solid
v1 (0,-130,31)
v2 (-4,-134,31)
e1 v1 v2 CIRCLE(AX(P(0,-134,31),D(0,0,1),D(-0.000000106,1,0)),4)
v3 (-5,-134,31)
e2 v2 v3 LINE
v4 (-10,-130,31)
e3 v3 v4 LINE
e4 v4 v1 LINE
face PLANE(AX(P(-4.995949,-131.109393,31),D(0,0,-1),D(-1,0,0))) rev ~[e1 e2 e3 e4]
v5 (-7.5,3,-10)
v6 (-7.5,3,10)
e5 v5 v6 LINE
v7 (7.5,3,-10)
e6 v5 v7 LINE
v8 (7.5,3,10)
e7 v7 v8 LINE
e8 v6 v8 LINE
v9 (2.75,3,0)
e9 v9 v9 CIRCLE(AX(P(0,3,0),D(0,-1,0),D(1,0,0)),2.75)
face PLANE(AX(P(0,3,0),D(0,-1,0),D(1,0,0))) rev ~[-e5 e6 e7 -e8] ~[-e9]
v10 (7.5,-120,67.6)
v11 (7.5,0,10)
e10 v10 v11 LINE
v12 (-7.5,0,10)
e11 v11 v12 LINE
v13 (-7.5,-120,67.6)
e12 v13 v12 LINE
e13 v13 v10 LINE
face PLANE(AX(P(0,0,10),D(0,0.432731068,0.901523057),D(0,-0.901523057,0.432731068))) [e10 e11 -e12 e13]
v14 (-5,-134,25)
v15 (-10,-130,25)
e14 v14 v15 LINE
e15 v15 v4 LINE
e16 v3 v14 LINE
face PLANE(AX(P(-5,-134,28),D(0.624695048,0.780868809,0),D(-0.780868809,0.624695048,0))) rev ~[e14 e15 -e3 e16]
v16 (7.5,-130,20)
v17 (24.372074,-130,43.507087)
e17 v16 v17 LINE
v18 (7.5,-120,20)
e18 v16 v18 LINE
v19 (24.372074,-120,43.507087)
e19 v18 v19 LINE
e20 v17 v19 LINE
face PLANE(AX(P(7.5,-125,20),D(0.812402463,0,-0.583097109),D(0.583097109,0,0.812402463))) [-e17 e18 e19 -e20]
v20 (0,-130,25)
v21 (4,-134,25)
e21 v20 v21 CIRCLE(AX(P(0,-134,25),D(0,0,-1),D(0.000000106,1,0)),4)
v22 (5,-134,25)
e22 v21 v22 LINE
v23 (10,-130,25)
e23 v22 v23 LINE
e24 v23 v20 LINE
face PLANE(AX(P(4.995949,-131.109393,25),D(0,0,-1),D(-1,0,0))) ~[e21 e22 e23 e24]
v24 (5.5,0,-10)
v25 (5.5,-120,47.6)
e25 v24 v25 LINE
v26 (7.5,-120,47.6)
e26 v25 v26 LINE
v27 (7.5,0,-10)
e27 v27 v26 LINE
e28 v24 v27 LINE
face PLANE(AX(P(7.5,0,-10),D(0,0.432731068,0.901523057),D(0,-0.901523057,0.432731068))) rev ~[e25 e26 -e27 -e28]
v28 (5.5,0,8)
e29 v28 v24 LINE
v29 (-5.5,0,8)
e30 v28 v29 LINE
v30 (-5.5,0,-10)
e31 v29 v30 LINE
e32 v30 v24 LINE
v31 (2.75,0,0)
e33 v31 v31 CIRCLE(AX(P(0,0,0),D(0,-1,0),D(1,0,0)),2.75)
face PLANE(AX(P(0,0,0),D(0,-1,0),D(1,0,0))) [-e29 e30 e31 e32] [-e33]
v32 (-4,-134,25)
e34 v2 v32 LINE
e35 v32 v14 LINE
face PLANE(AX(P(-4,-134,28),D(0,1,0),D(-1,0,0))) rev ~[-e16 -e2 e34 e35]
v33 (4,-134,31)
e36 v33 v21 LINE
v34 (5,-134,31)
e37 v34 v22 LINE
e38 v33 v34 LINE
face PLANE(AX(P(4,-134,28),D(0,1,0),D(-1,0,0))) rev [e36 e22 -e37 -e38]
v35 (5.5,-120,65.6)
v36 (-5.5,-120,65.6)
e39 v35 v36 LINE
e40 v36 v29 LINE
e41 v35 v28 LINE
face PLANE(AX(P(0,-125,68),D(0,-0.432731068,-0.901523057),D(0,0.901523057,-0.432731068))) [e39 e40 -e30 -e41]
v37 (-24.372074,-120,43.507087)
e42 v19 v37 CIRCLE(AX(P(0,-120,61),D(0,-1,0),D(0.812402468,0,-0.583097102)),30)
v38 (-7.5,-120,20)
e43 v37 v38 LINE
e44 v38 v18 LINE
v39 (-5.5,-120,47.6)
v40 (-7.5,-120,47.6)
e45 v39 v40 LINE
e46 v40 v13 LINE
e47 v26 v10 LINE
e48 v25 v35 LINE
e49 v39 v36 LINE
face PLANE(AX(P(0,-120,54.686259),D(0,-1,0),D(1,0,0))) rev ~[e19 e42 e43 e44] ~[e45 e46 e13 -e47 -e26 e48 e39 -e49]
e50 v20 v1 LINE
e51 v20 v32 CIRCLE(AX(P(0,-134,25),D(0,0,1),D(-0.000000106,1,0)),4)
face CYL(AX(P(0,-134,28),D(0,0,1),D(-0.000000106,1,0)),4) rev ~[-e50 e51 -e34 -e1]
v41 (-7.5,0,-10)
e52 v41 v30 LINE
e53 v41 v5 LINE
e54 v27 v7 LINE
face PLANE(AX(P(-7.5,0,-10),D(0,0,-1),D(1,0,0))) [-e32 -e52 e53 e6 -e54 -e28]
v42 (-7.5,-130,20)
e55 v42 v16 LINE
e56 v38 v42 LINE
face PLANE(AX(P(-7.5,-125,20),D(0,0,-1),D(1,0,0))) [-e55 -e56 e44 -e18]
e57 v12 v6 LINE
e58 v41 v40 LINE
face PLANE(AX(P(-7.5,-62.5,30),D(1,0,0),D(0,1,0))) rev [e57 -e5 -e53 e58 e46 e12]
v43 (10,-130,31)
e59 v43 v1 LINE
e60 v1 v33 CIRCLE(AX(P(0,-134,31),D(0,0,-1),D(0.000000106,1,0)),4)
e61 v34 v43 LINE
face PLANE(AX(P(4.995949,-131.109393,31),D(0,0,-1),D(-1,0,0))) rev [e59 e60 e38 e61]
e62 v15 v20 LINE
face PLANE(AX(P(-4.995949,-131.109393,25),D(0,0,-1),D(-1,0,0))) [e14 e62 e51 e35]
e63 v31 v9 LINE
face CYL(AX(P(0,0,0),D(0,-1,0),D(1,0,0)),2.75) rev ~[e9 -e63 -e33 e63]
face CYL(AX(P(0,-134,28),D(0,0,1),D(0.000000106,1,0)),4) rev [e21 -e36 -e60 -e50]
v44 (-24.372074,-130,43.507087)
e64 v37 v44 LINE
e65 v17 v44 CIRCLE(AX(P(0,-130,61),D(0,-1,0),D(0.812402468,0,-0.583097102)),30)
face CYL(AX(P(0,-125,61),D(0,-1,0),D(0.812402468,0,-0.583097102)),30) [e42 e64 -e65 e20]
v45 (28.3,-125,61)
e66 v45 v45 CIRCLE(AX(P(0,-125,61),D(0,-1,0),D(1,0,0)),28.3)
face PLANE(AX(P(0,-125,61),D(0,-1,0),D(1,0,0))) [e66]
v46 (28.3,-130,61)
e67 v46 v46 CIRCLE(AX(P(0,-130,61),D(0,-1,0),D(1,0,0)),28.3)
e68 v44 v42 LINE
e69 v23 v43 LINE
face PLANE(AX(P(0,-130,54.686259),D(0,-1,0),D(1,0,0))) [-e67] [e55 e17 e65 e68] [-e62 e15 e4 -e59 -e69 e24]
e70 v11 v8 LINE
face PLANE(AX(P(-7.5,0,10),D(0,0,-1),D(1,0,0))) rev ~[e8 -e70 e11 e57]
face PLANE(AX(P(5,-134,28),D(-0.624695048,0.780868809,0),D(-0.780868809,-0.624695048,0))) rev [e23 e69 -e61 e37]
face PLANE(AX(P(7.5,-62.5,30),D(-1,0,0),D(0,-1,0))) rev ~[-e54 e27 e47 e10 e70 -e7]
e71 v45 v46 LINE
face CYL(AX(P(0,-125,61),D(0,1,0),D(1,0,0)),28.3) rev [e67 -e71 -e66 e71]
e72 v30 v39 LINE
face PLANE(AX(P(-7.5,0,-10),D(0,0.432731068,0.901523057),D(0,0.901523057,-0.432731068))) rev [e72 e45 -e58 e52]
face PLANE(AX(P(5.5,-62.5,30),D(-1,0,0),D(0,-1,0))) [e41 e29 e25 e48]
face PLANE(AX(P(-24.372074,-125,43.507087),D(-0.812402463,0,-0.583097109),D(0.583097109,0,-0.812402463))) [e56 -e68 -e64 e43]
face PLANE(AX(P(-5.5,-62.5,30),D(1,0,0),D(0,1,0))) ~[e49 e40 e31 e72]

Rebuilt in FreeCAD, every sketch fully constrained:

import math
import FreeCAD as App
import Part
import Sketcher
from FreeCAD import Vector


def add_polygon(sketch, points):
    """Adds a closed chain of lines whose ends are joined by coincident constraints."""
    first, n = sketch.GeometryCount, len(points)
    for a, b in zip(points, points[1:] + points[:1]):
        sketch.addGeometry(Part.LineSegment(App.Vector(*a, 0), App.Vector(*b, 0)), False)
    for i in range(n):
        sketch.addConstraint(Sketcher.Constraint("Coincident", first + i, 2, first + (i + 1) % n, 1))

doc = App.newDocument("Part")
body = doc.addObject("PartDesign::Body", "Body")

# Sketch on XZ plane
sketch1 = doc.addObject("Sketcher::SketchObject", "Sketch")
body.addObject(sketch1)
sketch1.AttachmentSupport = (doc.XZ_Plane, [""])
sketch1.MapMode = "FlatFace"
add_polygon(sketch1, [(-7.5, 10), (-7.5, -10), (7.5, -10), (7.5, 10)])  # lines 0-3
sketch1.addGeometry(Part.Circle(Vector(0, 0, 0), Vector(0, 0, 1), 2.8), False)  # 4
sketch1.addConstraint(Sketcher.Constraint("Vertical", 0))
sketch1.addConstraint(Sketcher.Constraint("Horizontal", 1))
sketch1.addConstraint(Sketcher.Constraint("Vertical", 2))
sketch1.addConstraint(Sketcher.Constraint("Horizontal", 3))
sketch1.addConstraint(Sketcher.Constraint("Coincident", 4, 3, -1, 1))
sketch1.addConstraint(Sketcher.Constraint("Symmetric", 0, 2, 2, 2, -1, 1))
sketch1.addConstraint(Sketcher.Constraint("Diameter", 4, 5.5))
sketch1.addConstraint(Sketcher.Constraint("DistanceX", 1, 1, 1, 2, 15.0))
sketch1.addConstraint(Sketcher.Constraint("DistanceY", 0, 2, 0, 1, 20.0))
pad1 = doc.addObject("PartDesign::Pad", "Pad")
body.addObject(pad1)
pad1.Profile = sketch1
pad1.Length = 3
pad1.Reversed = True

# Sketch on YZ plane
sketch2 = doc.addObject("Sketcher::SketchObject", "Sketch001")
body.addObject(sketch2)
sketch2.AttachmentSupport = (doc.YZ_Plane, [""])
sketch2.MapMode = "FlatFace"
sketch2.AttachmentOffset = App.Placement(Vector(0, 0, 7.5), App.Rotation())
add_polygon(sketch2, [(-125, 50), (0, -10), (0, 10), (-125, 70)])  # lines 0-3
sketch2.addConstraint(Sketcher.Constraint("Vertical", 1))
sketch2.addConstraint(Sketcher.Constraint("Vertical", 3))
sketch2.addConstraint(Sketcher.Constraint("Symmetric", 0, 2, 1, 2, -1, 1))
sketch2.addConstraint(Sketcher.Constraint("Parallel", 0, 2))
sketch2.addConstraint(Sketcher.Constraint("DistanceY", 1, 1, 1, 2, 20.0))
sketch2.addConstraint(Sketcher.Constraint("DistanceX", 2, 2, -1, 1, 125.0))
sketch2.addConstraint(Sketcher.Constraint("DistanceY", -1, 1, 2, 2, 70.0))
pad2 = doc.addObject("PartDesign::Pad", "Pad001")
body.addObject(pad2)
pad2.Profile = sketch2
pad2.Length = 2
pad2.Reversed = True
doc.recompute()

mirrored = doc.addObject("PartDesign::Mirrored", "Mirrored")
body.addObject(mirrored)
mirrored.Originals = [pad2]
mirrored.MirrorPlane = (doc.YZ_Plane, [""])
body.Tip = mirrored

# Sketch on YZ plane
sketch3 = doc.addObject("Sketcher::SketchObject", "Sketch002")
body.addObject(sketch3)
sketch3.AttachmentSupport = (doc.YZ_Plane, [""])
sketch3.MapMode = "FlatFace"
add_polygon(sketch3, [(0, 10), (-125, 70), (-125, 68), (0, 8)])  # lines 0-3
sketch3.addConstraint(Sketcher.Constraint("Vertical", 1))
sketch3.addConstraint(Sketcher.Constraint("Vertical", 3))
sketch3.addConstraint(Sketcher.Constraint("PointOnObject", 2, 2, -2))
sketch3.addConstraint(Sketcher.Constraint("Parallel", 0, 2))
sketch3.addConstraint(Sketcher.Constraint("DistanceY", 1, 2, 1, 1, 2.0))
sketch3.addConstraint(Sketcher.Constraint("DistanceX", 0, 2, -1, 1, 125.0))
sketch3.addConstraint(Sketcher.Constraint("DistanceY", -1, 1, 0, 2, 70.0))
sketch3.addConstraint(Sketcher.Constraint("DistanceY", -1, 1, 2, 2, 8.0))
pad3 = doc.addObject("PartDesign::Pad", "Pad002")
body.addObject(pad3)
pad3.Profile = sketch3
pad3.Length = 11
pad3.Midplane = True

# Sketch on XZ plane
sketch4 = doc.addObject("Sketcher::SketchObject", "Sketch003")
body.addObject(sketch4)
sketch4.AttachmentSupport = (doc.XZ_Plane, [""])
sketch4.MapMode = "FlatFace"
sketch4.AttachmentOffset = App.Placement(Vector(0, 0, 125), App.Rotation())
sketch4.addGeometry(Part.ArcOfCircle(Part.Circle(Vector(0, 61, 0), Vector(0, 0, 1), 30), math.radians(-36), math.radians(216)), False)
sketch4.addGeometry(Part.LineSegment(Vector(-24, 44, 0), Vector(-8, 20, 0)), False)
sketch4.addGeometry(Part.LineSegment(Vector(-8, 20, 0), Vector(8, 20, 0)), False)
sketch4.addGeometry(Part.LineSegment(Vector(8, 20, 0), Vector(24, 44, 0)), False)
sketch4.addConstraint(Sketcher.Constraint("Tangent", 0, 2, 1, 1))
sketch4.addConstraint(Sketcher.Constraint("Coincident", 1, 2, 2, 1))
sketch4.addConstraint(Sketcher.Constraint("Coincident", 2, 2, 3, 1))
sketch4.addConstraint(Sketcher.Constraint("Tangent", 3, 2, 0, 1))
sketch4.addConstraint(Sketcher.Constraint("Horizontal", 2))
sketch4.addConstraint(Sketcher.Constraint("Symmetric", 0, 2, 3, 2, -2))
sketch4.addConstraint(Sketcher.Constraint("Radius", 0, 30.0))
sketch4.addConstraint(Sketcher.Constraint("DistanceX", 2, 1, 2, 2, 15.0))
sketch4.addConstraint(Sketcher.Constraint("DistanceY", -1, 1, 0, 3, 61.0))
sketch4.addConstraint(Sketcher.Constraint("DistanceY", -1, 1, 1, 2, 20.0))
pad4 = doc.addObject("PartDesign::Pad", "Pad003")
body.addObject(pad4)
pad4.Profile = sketch4
pad4.Length = 10
pad4.Midplane = True

# Sketch on XZ plane
sketch5 = doc.addObject("Sketcher::SketchObject", "Sketch004")
body.addObject(sketch5)
sketch5.AttachmentSupport = (doc.XZ_Plane, [""])
sketch5.MapMode = "FlatFace"
sketch5.AttachmentOffset = App.Placement(Vector(0, 0, 125), App.Rotation())
sketch5.addGeometry(Part.Circle(Vector(0, 61, 0), Vector(0, 0, 1), 28), False)
sketch5.addConstraint(Sketcher.Constraint("PointOnObject", 0, 3, -2))
sketch5.addConstraint(Sketcher.Constraint("Diameter", 0, 56.6))
sketch5.addConstraint(Sketcher.Constraint("DistanceY", -1, 1, 0, 3, 61.0))
pocket1 = doc.addObject("PartDesign::Pocket", "Pocket")
body.addObject(pocket1)
pocket1.Profile = sketch5
pocket1.Length = 5
pocket1.Reversed = True

# Sketch on XY plane
sketch6 = doc.addObject("Sketcher::SketchObject", "Sketch005")
body.addObject(sketch6)
sketch6.AttachmentSupport = (doc.XY_Plane, [""])
sketch6.MapMode = "FlatFace"
sketch6.AttachmentOffset = App.Placement(Vector(0, 0, 28), App.Rotation())
sketch6.addGeometry(Part.ArcOfCircle(Part.Circle(Vector(0, -134, 0), Vector(0, 0, 1), 4), math.radians(90), math.radians(180)), False)
sketch6.addGeometry(Part.LineSegment(Vector(0, -130, 0), Vector(-10, -130, 0)), False)
sketch6.addGeometry(Part.LineSegment(Vector(-10, -130, 0), Vector(-5, -134, 0)), False)
sketch6.addGeometry(Part.LineSegment(Vector(-5, -134, 0), Vector(-4, -134, 0)), False)
sketch6.addConstraint(Sketcher.Constraint("Tangent", 0, 1, 1, 1))
sketch6.addConstraint(Sketcher.Constraint("Coincident", 1, 2, 2, 1))
sketch6.addConstraint(Sketcher.Constraint("Coincident", 2, 2, 3, 1))
sketch6.addConstraint(Sketcher.Constraint("Coincident", 3, 2, 0, 2))
sketch6.addConstraint(Sketcher.Constraint("Horizontal", 1))
sketch6.addConstraint(Sketcher.Constraint("Horizontal", 3))
sketch6.addConstraint(Sketcher.Constraint("PointOnObject", 0, 3, -2))
sketch6.addConstraint(Sketcher.Constraint("Horizontal", 0, 3, 2, 2))
sketch6.addConstraint(Sketcher.Constraint("Radius", 0, 4.0))
sketch6.addConstraint(Sketcher.Constraint("DistanceX", 1, 2, 1, 1, 10.0))
sketch6.addConstraint(Sketcher.Constraint("DistanceX", 3, 1, 3, 2, 1.0))
sketch6.addConstraint(Sketcher.Constraint("DistanceY", 0, 3, -1, 1, 134.0))
pad5 = doc.addObject("PartDesign::Pad", "Pad004")
body.addObject(pad5)
pad5.Profile = sketch6
pad5.Length = 6
pad5.Midplane = True
doc.recompute()

mirrored2 = doc.addObject("PartDesign::Mirrored", "Mirrored001")
body.addObject(mirrored2)
mirrored2.Originals = [pad5]
mirrored2.MirrorPlane = (doc.YZ_Plane, [""])
body.Tip = mirrored2

doc.recompute()
